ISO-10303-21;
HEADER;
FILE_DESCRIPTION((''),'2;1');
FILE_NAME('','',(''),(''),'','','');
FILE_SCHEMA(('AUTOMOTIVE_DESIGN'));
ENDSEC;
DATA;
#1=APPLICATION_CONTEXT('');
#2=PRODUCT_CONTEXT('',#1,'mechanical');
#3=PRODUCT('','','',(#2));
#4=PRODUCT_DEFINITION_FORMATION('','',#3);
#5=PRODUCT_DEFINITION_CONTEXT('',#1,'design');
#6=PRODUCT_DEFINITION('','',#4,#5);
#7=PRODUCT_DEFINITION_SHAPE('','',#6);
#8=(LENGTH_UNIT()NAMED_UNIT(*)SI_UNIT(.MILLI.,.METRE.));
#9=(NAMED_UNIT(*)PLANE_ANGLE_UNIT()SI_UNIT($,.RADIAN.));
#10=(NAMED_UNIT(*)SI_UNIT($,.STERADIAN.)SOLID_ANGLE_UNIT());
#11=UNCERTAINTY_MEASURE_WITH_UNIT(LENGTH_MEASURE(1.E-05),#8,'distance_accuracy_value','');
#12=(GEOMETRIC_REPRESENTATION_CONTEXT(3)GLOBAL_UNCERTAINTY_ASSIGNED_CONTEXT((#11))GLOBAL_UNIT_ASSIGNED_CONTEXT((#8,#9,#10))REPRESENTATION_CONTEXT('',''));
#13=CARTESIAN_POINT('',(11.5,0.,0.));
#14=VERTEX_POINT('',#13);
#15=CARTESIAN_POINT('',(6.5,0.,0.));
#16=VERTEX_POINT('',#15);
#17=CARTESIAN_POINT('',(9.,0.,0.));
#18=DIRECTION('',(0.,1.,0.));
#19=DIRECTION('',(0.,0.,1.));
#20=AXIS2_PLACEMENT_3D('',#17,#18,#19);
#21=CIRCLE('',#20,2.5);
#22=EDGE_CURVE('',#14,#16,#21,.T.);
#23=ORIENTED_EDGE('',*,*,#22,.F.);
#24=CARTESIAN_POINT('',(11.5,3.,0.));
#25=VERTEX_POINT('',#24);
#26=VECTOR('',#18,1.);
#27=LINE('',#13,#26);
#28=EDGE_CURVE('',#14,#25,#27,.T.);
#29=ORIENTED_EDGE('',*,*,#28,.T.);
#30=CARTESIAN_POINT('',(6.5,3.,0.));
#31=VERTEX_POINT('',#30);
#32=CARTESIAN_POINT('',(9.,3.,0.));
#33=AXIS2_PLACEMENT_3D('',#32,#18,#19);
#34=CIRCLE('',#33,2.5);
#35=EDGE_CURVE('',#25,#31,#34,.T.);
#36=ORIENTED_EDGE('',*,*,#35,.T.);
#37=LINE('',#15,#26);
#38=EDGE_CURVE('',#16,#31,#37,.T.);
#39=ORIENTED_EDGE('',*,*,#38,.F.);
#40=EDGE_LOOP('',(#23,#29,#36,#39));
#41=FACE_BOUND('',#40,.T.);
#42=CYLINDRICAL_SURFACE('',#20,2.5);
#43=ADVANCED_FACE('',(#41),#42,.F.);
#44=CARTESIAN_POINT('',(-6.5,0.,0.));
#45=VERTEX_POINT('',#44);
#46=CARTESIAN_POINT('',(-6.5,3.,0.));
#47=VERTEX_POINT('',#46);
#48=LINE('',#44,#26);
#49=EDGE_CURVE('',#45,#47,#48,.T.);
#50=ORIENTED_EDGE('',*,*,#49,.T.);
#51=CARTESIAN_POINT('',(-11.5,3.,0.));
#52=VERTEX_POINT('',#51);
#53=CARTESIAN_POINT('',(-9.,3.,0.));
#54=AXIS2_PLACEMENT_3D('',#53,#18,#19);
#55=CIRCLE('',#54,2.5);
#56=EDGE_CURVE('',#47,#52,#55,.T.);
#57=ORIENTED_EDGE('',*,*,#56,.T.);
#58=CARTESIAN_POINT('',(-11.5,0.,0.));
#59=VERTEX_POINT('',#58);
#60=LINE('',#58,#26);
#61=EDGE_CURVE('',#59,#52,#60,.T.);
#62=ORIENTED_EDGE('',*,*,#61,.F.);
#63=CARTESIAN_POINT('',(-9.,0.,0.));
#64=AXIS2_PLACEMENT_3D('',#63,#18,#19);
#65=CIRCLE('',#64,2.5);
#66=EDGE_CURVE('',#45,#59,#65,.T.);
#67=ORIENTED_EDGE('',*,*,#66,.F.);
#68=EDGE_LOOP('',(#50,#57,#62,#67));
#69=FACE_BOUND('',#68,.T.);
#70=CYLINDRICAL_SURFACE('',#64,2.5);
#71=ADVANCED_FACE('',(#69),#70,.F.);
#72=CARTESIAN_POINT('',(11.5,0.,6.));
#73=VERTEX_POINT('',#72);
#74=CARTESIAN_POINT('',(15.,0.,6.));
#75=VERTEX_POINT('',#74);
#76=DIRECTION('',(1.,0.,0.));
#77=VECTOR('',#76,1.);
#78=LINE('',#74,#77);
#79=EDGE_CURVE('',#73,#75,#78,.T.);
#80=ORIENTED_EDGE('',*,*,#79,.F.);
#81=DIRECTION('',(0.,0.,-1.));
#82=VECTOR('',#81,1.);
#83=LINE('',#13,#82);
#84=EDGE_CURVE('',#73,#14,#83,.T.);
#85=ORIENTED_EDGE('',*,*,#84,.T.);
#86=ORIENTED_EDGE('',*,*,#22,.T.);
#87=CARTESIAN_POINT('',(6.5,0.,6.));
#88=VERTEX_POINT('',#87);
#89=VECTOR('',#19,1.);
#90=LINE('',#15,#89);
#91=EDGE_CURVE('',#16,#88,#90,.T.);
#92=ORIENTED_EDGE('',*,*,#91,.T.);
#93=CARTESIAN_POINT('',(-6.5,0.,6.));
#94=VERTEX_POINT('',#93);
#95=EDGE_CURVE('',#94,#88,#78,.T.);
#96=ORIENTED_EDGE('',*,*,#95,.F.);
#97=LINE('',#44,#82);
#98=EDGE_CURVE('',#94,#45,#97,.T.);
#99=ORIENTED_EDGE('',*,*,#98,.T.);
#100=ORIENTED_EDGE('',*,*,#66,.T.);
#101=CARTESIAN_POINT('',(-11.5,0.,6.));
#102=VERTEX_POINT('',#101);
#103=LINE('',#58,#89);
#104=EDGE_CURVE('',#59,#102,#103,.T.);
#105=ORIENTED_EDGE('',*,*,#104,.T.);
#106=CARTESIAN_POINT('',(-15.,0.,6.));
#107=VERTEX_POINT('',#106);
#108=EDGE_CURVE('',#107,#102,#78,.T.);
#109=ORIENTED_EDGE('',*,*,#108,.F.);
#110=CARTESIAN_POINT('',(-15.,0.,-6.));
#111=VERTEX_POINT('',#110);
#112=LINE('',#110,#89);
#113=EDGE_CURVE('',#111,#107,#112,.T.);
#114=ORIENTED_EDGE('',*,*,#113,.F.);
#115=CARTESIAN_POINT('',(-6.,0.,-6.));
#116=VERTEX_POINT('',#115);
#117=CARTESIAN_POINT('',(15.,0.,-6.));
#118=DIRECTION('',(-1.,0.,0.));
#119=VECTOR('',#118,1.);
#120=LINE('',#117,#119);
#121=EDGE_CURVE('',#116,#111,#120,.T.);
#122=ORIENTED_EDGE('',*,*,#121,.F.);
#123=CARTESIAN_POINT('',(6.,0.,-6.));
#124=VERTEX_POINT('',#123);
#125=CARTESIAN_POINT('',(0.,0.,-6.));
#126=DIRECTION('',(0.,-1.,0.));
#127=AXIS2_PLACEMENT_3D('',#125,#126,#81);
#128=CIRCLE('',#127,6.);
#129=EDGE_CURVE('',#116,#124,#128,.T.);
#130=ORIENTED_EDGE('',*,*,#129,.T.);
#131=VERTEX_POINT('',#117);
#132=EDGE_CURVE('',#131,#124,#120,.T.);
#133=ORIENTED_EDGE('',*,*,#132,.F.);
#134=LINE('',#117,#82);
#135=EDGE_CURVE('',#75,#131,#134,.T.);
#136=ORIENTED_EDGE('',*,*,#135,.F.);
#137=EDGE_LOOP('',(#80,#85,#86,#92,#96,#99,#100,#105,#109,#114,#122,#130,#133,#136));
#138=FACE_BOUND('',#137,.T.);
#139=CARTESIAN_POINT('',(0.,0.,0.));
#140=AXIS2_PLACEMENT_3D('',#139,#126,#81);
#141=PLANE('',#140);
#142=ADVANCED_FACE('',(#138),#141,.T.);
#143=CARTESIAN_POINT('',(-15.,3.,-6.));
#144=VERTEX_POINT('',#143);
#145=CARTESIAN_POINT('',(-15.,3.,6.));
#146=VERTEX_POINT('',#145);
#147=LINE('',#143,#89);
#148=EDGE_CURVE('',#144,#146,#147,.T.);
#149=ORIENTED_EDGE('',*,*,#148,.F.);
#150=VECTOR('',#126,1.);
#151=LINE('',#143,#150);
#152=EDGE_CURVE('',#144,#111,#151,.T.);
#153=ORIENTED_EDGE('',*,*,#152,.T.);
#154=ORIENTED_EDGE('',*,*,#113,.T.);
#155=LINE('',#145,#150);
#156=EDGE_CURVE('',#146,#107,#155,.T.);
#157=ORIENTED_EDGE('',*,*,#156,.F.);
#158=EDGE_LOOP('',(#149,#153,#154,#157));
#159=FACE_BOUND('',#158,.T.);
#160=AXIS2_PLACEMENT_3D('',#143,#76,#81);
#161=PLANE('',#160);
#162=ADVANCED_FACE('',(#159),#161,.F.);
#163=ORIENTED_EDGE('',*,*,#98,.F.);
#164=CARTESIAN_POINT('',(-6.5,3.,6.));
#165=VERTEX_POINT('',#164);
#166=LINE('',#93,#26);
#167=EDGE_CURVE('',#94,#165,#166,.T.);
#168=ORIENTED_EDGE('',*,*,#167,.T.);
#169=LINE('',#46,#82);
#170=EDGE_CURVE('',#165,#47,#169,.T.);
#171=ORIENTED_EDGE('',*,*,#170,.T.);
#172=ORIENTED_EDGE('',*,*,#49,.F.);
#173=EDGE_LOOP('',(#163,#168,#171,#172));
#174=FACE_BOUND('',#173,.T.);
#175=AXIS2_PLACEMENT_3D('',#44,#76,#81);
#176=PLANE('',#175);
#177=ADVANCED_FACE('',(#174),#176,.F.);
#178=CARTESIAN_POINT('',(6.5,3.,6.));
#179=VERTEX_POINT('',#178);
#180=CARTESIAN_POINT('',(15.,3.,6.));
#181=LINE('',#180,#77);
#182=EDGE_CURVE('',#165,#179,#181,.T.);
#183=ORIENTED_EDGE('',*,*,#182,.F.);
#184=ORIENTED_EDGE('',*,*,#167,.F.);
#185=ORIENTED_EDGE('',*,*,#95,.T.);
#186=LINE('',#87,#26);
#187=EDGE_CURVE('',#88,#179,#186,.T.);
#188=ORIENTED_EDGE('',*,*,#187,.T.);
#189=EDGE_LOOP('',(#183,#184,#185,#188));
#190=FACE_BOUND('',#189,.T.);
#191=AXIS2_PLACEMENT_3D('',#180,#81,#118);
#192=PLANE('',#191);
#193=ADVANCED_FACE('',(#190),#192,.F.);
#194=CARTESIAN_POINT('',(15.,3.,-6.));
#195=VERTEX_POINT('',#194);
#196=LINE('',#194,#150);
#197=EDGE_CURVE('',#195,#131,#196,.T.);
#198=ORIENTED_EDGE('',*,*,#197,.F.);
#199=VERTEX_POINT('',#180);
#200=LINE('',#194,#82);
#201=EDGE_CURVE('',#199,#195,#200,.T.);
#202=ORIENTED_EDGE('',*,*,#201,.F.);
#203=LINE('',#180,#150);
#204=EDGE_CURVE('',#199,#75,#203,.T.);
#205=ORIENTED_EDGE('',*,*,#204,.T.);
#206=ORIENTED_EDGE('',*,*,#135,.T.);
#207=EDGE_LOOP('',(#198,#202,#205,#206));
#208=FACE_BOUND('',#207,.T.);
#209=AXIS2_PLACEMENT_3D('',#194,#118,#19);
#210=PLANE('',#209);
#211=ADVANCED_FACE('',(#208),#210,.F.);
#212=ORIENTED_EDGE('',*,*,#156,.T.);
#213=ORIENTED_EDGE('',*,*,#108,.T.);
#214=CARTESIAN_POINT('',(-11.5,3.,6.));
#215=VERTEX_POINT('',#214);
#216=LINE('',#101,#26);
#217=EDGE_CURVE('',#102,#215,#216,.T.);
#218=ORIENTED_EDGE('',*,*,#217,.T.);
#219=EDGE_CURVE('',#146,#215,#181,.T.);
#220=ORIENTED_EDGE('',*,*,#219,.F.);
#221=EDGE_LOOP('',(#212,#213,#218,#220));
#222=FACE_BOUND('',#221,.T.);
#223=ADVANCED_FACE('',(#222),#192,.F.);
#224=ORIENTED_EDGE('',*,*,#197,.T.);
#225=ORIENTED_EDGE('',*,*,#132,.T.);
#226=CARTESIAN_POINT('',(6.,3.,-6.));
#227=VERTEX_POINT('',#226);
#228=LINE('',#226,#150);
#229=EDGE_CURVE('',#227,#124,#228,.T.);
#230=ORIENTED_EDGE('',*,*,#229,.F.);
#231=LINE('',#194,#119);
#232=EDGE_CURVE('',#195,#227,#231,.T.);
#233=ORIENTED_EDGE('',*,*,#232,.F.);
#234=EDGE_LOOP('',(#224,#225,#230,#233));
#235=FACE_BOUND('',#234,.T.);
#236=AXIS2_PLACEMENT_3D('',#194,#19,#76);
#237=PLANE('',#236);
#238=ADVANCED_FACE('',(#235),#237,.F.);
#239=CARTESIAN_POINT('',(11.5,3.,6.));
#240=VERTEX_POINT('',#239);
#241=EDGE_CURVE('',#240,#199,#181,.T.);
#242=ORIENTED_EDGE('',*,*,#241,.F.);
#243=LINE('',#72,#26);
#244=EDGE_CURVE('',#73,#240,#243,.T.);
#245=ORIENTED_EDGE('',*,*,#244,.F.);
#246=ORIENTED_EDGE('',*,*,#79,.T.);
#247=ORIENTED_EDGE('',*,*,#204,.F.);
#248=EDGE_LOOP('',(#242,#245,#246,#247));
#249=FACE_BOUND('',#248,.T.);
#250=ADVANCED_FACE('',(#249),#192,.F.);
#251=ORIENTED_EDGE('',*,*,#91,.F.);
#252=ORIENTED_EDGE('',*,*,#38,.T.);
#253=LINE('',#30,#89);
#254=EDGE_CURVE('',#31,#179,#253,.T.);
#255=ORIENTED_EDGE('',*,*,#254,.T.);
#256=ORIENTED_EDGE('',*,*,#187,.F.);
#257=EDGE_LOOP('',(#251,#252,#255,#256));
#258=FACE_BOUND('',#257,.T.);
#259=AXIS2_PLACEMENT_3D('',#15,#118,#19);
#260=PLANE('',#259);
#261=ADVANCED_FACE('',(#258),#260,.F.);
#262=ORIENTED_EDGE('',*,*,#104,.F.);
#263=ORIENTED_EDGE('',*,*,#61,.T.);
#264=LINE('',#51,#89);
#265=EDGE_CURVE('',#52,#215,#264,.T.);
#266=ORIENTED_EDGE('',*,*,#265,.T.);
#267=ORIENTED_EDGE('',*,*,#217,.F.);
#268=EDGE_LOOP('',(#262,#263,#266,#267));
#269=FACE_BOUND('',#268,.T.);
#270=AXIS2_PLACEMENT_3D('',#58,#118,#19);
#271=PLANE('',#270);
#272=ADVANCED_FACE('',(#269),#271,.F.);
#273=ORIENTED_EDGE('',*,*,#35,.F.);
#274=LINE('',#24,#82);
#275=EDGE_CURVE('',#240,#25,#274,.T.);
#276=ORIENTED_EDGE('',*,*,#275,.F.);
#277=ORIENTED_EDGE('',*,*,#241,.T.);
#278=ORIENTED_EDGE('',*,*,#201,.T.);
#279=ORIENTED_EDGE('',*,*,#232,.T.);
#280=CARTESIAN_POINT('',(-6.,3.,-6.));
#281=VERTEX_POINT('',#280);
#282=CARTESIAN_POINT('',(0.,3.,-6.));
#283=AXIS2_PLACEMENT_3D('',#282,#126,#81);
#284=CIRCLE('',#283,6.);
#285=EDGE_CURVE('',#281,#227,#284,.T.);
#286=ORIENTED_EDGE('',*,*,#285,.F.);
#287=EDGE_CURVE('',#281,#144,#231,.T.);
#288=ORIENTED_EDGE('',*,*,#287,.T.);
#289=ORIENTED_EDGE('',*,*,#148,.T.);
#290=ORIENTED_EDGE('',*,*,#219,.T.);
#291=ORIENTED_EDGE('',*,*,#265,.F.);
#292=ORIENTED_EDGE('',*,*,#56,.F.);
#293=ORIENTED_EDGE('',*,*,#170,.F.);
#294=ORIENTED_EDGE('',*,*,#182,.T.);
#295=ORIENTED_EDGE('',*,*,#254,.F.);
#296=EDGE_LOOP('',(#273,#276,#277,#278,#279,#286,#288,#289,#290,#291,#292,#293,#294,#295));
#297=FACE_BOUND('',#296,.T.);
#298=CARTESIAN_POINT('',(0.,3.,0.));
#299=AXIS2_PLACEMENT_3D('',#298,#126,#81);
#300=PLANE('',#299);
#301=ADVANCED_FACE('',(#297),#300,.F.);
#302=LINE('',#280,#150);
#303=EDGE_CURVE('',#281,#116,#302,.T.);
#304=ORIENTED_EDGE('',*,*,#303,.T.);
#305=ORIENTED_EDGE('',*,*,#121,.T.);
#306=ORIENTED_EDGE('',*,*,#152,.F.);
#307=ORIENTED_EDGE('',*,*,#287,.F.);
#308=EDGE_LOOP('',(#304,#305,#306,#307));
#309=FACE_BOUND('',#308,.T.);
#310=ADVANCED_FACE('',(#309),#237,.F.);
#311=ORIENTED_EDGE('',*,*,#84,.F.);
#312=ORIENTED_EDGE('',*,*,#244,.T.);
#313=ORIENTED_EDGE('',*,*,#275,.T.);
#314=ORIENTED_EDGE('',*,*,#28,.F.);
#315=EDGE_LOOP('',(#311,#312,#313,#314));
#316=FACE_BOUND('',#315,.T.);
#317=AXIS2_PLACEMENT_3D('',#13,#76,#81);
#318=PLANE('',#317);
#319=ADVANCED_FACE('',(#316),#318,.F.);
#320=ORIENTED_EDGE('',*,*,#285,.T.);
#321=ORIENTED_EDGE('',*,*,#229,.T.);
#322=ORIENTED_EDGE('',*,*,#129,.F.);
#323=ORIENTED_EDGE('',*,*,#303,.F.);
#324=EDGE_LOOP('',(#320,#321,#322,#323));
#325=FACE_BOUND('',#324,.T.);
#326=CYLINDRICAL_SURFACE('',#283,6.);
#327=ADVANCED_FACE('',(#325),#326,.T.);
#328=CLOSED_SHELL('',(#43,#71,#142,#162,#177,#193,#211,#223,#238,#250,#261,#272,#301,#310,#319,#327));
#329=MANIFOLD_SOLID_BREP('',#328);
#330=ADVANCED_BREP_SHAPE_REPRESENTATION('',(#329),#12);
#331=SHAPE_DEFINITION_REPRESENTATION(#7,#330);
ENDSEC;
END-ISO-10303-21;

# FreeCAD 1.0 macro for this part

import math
import FreeCAD as App
import Part
import Sketcher

doc = App.newDocument("Part")
body = doc.addObject("PartDesign::Body", "Body")

sketch1 = body.newObject("Sketcher::SketchObject", "Sketch")
sketch1.AttachmentSupport = (doc.getObject("XZ_Plane"), [""])
sketch1.MapMode = "FlatFace"
sketch1.addGeometry([
    Part.LineSegment(App.Vector(-15, -6, 0), App.Vector(-15, 6, 0)),
    Part.LineSegment(App.Vector(-15, 6, 0), App.Vector(15, 6, 0)),
    Part.LineSegment(App.Vector(15, 6, 0), App.Vector(15, -6, 0)),
    Part.LineSegment(App.Vector(15, -6, 0), App.Vector(-15, -6, 0)),
], False)
sketch1.addConstraint([
    Sketcher.Constraint("Coincident", 0, 2, 1, 1),
    Sketcher.Constraint("Coincident", 1, 2, 2, 1),
    Sketcher.Constraint("Coincident", 2, 2, 3, 1),
    Sketcher.Constraint("Coincident", 3, 2, 0, 1),
    Sketcher.Constraint("Vertical", 0),
    Sketcher.Constraint("Horizontal", 1),
    Sketcher.Constraint("Vertical", 2),
    Sketcher.Constraint("Horizontal", 3),
    Sketcher.Constraint("Symmetric", 0, 2, 2, 2, -1, 1),
    Sketcher.Constraint("DistanceX", 1, 1, 1, 2, 30.0),
    Sketcher.Constraint("DistanceY", 0, 1, 0, 2, 12.0),
])
pad1 = body.newObject("PartDesign::Pad", "Pad")
pad1.Profile = sketch1
pad1.Length = 3
pad1.Reversed = True

sketch2 = body.newObject("Sketcher::SketchObject", "Sketch001")
sketch2.AttachmentSupport = (doc.getObject("XZ_Plane"), [""])
sketch2.MapMode = "FlatFace"
sketch2.AttachmentOffset = App.Placement(App.Vector(0, 0, -3), App.Rotation())
sketch2.addGeometry([
    Part.Circle(App.Vector(-9, 0, 0), App.Vector(0, 0, 1), 1.5),
    Part.Circle(App.Vector(9, 0, 0), App.Vector(0, 0, 1), 1.5),
], False)
sketch2.addConstraint([
    Sketcher.Constraint("Equal", 0, 1),
    Sketcher.Constraint("Symmetric", 0, 3, 1, 3, -1, 1),
    Sketcher.Constraint("PointOnObject", 0, 3, -1),
    Sketcher.Constraint("Diameter", 0, 3.0),
    Sketcher.Constraint("DistanceX", 0, 3, -1, 1, 9.0),
])
pocket1 = body.newObject("PartDesign::Pocket", "Pocket")
pocket1.Profile = sketch2
pocket1.Type = "ThroughAll"
pocket1.Reversed = True

sketch3 = body.newObject("Sketcher::SketchObject", "Sketch002")
sketch3.AttachmentSupport = (doc.getObject("XZ_Plane"), [""])
sketch3.MapMode = "FlatFace"
sketch3.AttachmentOffset = App.Placement(App.Vector(0, 0, -3), App.Rotation())
sketch3.addGeometry([
    Part.LineSegment(App.Vector(-6.5, 6, 0), App.Vector(-6.5, 0, 0)),
    Part.ArcOfCircle(Part.Circle(App.Vector(-9, 0, 0), App.Vector(0, 0, 1), 2.5), math.radians(180), math.radians(360)),
    Part.LineSegment(App.Vector(-11.5, 0, 0), App.Vector(-11.5, 6, 0)),
    Part.ArcOfCircle(Part.Circle(App.Vector(-9, 6, 0), App.Vector(0, 0, 1), 2.5), math.radians(0), math.radians(180)),
    Part.LineSegment(App.Vector(11.5, 6, 0), App.Vector(11.5, 0, 0)),
    Part.ArcOfCircle(Part.Circle(App.Vector(9, 0, 0), App.Vector(0, 0, 1), 2.5), math.radians(180), math.radians(360)),
    Part.LineSegment(App.Vector(6.5, 0, 0), App.Vector(6.5, 6, 0)),
    Part.ArcOfCircle(Part.Circle(App.Vector(9, 6, 0), App.Vector(0, 0, 1), 2.5), math.radians(0), math.radians(180)),
], False)
sketch3.addConstraint([
    Sketcher.Constraint("Tangent", 0, 2, 1, 2),
    Sketcher.Constraint("Tangent", 1, 1, 2, 1),
    Sketcher.Constraint("Tangent", 2, 2, 3, 2),
    Sketcher.Constraint("Tangent", 3, 1, 0, 1),
    Sketcher.Constraint("Tangent", 4, 2, 5, 2),
    Sketcher.Constraint("Tangent", 5, 1, 6, 1),
    Sketcher.Constraint("Tangent", 6, 2, 7, 2),
    Sketcher.Constraint("Tangent", 7, 1, 4, 1),
    Sketcher.Constraint("Vertical", 0),
    Sketcher.Constraint("Vertical", 2),
    Sketcher.Constraint("Vertical", 4),
    Sketcher.Constraint("Vertical", 6),
    Sketcher.Constraint("Equal", 3, 5),
    Sketcher.Constraint("Symmetric", 1, 3, 5, 3, -1, 1),
    Sketcher.Constraint("PointOnObject", 1, 3, -1),
    Sketcher.Constraint("Horizontal", 3, 3, 7, 3),
    Sketcher.Constraint("Radius", 1, 2.5),
    Sketcher.Constraint("DistanceY", 0, 2, 0, 1, 6.0),
    Sketcher.Constraint("DistanceX", 1, 3, -1, 1, 9.0),
])
pocket2 = body.newObject("PartDesign::Pocket", "Pocket001")
pocket2.Profile = sketch3
pocket2.Type = "ThroughAll"
pocket2.Reversed = True

sketch4 = body.newObject("Sketcher::SketchObject", "Sketch003")
sketch4.AttachmentSupport = (doc.getObject("XZ_Plane"), [""])
sketch4.MapMode = "FlatFace"
sketch4.addGeometry([
    Part.LineSegment(App.Vector(-6, 0, 0), App.Vector(-6, -6, 0)),
    Part.ArcOfCircle(Part.Circle(App.Vector(0, -6, 0), App.Vector(0, 0, 1), 6), math.radians(180), math.radians(360)),
    Part.LineSegment(App.Vector(6, -6, 0), App.Vector(6, 0, 0)),
    Part.ArcOfCircle(Part.Circle(App.Vector(0, 0, 0), App.Vector(0, 0, 1), 6), math.radians(0), math.radians(180)),
], False)
sketch4.addConstraint([
    Sketcher.Constraint("Tangent", 0, 2, 1, 1),
    Sketcher.Constraint("Tangent", 1, 2, 2, 1),
    Sketcher.Constraint("Tangent", 2, 2, 3, 1),
    Sketcher.Constraint("Tangent", 3, 2, 0, 1),
    Sketcher.Constraint("Vertical", 0),
    Sketcher.Constraint("Vertical", 2),
    Sketcher.Constraint("Coincident", 3, 3, -1, 1),
    Sketcher.Constraint("Radius", 1, 6.0),
    Sketcher.Constraint("DistanceY", 0, 2, 0, 1, 6.0),
])
pad2 = body.newObject("PartDesign::Pad", "Pad001")
pad2.Profile = sketch4
pad2.Length = 3
pad2.Reversed = True

doc.recompute()
